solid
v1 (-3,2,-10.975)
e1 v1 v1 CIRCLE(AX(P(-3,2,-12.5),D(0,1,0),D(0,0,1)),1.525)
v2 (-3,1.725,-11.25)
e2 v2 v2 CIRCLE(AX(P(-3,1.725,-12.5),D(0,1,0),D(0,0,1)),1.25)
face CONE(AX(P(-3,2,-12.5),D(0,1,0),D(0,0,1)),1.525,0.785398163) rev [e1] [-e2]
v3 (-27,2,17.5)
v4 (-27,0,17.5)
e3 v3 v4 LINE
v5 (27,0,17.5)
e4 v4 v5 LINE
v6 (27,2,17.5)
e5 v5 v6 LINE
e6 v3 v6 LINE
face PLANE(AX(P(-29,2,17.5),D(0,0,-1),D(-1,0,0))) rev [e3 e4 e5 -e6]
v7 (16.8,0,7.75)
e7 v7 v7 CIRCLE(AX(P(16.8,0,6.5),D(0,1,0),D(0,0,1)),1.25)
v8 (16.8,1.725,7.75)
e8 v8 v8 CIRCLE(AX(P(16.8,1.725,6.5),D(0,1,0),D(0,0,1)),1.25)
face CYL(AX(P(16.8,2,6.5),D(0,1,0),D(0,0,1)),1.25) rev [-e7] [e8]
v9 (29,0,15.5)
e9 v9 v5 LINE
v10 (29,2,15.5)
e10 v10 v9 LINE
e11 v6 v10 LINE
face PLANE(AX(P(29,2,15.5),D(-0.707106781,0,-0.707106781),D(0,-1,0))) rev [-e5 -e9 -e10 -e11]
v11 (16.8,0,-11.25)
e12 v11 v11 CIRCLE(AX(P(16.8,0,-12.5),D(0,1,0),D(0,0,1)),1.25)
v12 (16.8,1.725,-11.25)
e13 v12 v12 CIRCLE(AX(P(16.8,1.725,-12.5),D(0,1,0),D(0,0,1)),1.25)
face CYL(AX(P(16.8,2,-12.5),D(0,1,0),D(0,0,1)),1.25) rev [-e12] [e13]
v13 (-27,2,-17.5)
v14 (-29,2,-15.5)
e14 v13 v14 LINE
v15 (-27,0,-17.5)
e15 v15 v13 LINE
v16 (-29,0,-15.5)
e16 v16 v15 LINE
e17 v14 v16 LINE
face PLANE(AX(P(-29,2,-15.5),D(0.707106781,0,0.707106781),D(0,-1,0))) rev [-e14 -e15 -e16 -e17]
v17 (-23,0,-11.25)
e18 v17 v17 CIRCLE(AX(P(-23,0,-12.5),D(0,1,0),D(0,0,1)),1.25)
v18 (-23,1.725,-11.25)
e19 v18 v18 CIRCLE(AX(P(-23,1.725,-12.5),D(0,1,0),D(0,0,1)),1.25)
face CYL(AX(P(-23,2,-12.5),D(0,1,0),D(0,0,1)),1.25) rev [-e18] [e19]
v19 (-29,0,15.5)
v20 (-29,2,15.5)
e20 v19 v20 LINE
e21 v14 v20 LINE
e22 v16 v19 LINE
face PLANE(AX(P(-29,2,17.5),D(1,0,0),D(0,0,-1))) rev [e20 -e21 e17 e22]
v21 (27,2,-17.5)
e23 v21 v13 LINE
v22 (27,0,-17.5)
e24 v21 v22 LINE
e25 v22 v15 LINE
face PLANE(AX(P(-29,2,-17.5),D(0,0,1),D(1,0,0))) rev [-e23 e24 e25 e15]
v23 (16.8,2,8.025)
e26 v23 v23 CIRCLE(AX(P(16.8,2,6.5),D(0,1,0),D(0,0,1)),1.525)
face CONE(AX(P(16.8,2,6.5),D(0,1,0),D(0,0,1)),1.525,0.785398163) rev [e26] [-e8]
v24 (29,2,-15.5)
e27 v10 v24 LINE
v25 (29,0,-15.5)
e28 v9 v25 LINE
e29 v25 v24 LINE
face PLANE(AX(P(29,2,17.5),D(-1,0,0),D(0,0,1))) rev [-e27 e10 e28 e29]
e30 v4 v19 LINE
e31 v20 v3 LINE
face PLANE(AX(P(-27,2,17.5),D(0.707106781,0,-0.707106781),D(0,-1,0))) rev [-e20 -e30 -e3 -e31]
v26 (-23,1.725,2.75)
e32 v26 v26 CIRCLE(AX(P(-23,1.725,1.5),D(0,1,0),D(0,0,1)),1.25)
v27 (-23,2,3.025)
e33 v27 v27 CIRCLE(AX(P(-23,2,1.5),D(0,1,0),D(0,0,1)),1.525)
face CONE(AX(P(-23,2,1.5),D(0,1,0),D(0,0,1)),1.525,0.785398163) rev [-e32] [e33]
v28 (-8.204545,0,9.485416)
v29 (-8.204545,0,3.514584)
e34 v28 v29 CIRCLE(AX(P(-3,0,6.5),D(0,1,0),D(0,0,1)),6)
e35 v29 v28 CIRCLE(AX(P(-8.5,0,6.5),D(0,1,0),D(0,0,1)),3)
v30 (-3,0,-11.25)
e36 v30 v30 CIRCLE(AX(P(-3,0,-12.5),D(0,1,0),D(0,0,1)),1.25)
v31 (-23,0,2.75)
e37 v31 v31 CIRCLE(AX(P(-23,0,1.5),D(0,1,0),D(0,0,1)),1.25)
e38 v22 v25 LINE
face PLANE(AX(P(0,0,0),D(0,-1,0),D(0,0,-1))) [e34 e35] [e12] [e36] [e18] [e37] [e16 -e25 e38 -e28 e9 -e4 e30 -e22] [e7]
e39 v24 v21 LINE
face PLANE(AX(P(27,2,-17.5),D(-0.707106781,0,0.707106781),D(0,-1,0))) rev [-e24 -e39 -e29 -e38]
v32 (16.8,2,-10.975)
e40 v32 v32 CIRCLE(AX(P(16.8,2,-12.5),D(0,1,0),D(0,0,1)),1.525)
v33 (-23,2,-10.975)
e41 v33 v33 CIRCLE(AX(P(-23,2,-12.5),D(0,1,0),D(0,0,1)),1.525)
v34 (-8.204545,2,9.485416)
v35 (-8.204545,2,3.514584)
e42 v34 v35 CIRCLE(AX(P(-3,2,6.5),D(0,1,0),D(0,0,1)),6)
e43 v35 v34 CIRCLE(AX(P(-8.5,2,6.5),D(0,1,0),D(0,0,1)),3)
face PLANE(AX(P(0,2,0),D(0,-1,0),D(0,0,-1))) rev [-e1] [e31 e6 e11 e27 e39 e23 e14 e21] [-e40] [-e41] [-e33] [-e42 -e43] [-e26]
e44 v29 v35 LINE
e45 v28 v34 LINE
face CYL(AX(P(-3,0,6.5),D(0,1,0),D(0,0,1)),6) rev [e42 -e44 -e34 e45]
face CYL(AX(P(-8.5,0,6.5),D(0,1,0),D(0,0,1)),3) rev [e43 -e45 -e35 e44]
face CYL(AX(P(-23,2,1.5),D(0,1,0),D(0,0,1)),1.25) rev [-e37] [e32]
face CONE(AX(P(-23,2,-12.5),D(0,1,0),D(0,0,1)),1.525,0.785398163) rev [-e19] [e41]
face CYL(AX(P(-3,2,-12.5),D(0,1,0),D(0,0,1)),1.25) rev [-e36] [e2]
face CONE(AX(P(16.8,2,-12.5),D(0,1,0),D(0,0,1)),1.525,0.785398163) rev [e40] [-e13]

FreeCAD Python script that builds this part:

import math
import FreeCAD as App
import Part
import Sketcher

V = App.Vector


def edges_at(feature, points):
    """Names of the edges that pass closest to the given points."""
    edges = feature.Shape.Edges
    near = lambda p: min(range(len(edges)), key=lambda i: edges[i].distToShape(Part.Vertex(*p))[0])
    return sorted({f"Edge{near(p) + 1}" for p in points})


def add_polygon(sketch, points):
    """Adds a closed chain of lines whose ends are joined by coincident constraints."""
    first, n = sketch.GeometryCount, len(points)
    for a, b in zip(points, points[1:] + points[:1]):
        sketch.addGeometry(Part.LineSegment(App.Vector(*a, 0), App.Vector(*b, 0)), False)
    for i in range(n):
        sketch.addConstraint(Sketcher.Constraint("Coincident", first + i, 2, first + (i + 1) % n, 1))

doc = App.newDocument("Part")
params = doc.addObject("Spreadsheet::Sheet", "Params")
for row, (alias, value) in enumerate([
    ("sketch1_width", "58 mm"),
    ("sketch1_height", "35 mm"),
    ("pad1_length", "2 mm"),
    ("sketch2_diameter", "2.5 mm"),
    ("hole_diameter", "2.5 mm"),
    ("hole_csink_diameter", "3.05 mm"),
    ("sketch3_radius", "3 mm"),
    ("sketch3_radius2", "6 mm"),
    ("chamfer_size", "2 mm"),
], start=1):
    params.set(f"A{row}", alias)
    params.set(f"B{row}", "=" + value)
    params.setAlias(f"B{row}", alias)

body = doc.addObject("PartDesign::Body", "Body")

sketch1 = doc.addObject("Sketcher::SketchObject", "Sketch")
body.addObject(sketch1)
sketch1.AttachmentSupport = (doc.XZ_Plane, [""])
sketch1.MapMode = "FlatFace"
add_polygon(sketch1, [(-29, -18), (-29, 18), (29, 18), (29, -18)])
sketch1.addConstraint([
    Sketcher.Constraint("Vertical", 0),
    Sketcher.Constraint("Horizontal", 1),
    Sketcher.Constraint("Vertical", 2),
    Sketcher.Constraint("Horizontal", 3),
    Sketcher.Constraint("Symmetric", 0, 2, 2, 2, -1, 1),
    Sketcher.Constraint("DistanceX", 1, 1, 1, 2, 58.0),
    Sketcher.Constraint("DistanceY", 0, 1, 0, 2, 35.0),
])
sketch1.setExpression("Constraints[9]", "Params.sketch1_width")
sketch1.setExpression("Constraints[10]", "Params.sketch1_height")
pad1 = doc.addObject("PartDesign::Pad", "Pad")
body.addObject(pad1)
pad1.Profile = sketch1
pad1.setExpression("Length", "Params.pad1_length")
pad1.Reversed = True

sketch2 = doc.addObject("Sketcher::SketchObject", "Sketch001")
body.addObject(sketch2)
sketch2.AttachmentSupport = (doc.XZ_Plane, [""])
sketch2.MapMode = "FlatFace"
sketch2.AttachmentOffset = App.Placement(V(0, 0, -2), App.Rotation())
sketch2.addGeometry([
    Part.Circle(V(-23, -12.5, 0), V(0, 0, 1), 1.2),
    Part.Circle(V(-3, -12.5, 0), V(0, 0, 1), 1.2),
    Part.Circle(V(16.8, -12.5, 0), V(0, 0, 1), 1.2),
    Part.Circle(V(16.8, 6.5, 0), V(0, 0, 1), 1.2),
    Part.Circle(V(-23, 1.5, 0), V(0, 0, 1), 1.2),
], False)
sketch2.addConstraint([
    Sketcher.Constraint("Equal", 0, 1),
    Sketcher.Constraint("Equal", 1, 2),
    Sketcher.Constraint("Equal", 2, 3),
    Sketcher.Constraint("Equal", 3, 4),
    Sketcher.Constraint("Horizontal", 0, 3, 1, 3),
    Sketcher.Constraint("Horizontal", 1, 3, 2, 3),
    Sketcher.Constraint("Vertical", 2, 3, 3, 3),
    Sketcher.Constraint("Vertical", 0, 3, 4, 3),
    Sketcher.Constraint("Diameter", 0, 2.5),
    Sketcher.Constraint("DistanceX", 0, 3, -1, 1, 23.0),
    Sketcher.Constraint("DistanceX", 1, 3, -1, 1, 3.0),
    Sketcher.Constraint("DistanceY", 2, 3, 3, 3, 19.0),
    Sketcher.Constraint("DistanceY", 0, 3, 4, 3, 14.0),
    Sketcher.Constraint("DistanceY", 0, 3, -1, 1, 12.5),
    Sketcher.Constraint("DistanceX", -1, 1, 2, 3, 16.8),
])
sketch2.setExpression("Constraints[8]", "Params.sketch2_diameter")
doc.recompute()
hole = doc.addObject("PartDesign::Hole", "Hole")
body.addObject(hole)
hole.Profile = sketch2
hole.ThreadType = "None"
hole.setExpression("Diameter", "Params.hole_diameter")
hole.DepthType = "ThroughAll"
hole.HoleCutType = "Countersink"
hole.setExpression("HoleCutDiameter", "Params.hole_csink_diameter")
hole.HoleCutCountersinkAngle = 90
hole.Reversed = True

sketch3 = doc.addObject("Sketcher::SketchObject", "Sketch002")
body.addObject(sketch3)
sketch3.AttachmentSupport = (doc.XZ_Plane, [""])
sketch3.MapMode = "FlatFace"
sketch3.AttachmentOffset = App.Placement(V(0, 0, -2), App.Rotation())
sketch3.addGeometry([
    Part.ArcOfCircle(Part.Circle(V(-8.5, 6.5, 0), V(0, 0, 1), 3), math.radians(84), math.radians(276)),
    Part.ArcOfCircle(Part.Circle(V(-3, 6.5, 0), V(0, 0, 1), 6), math.radians(-150), math.radians(150)),
], False)
sketch3.addConstraint([
    Sketcher.Constraint("Coincident", 0, 1, 1, 2),
    Sketcher.Constraint("Coincident", 1, 1, 0, 2),
    Sketcher.Constraint("Horizontal", 0, 3, 1, 3),
    Sketcher.Constraint("Radius", 0, 3.0),
    Sketcher.Constraint("Radius", 1, 6.0),
    Sketcher.Constraint("DistanceX", 1, 3, -1, 1, 3.0),
    Sketcher.Constraint("DistanceX", 0, 3, -1, 1, 8.5),
    Sketcher.Constraint("DistanceY", -1, 1, 0, 3, 6.5),
])
sketch3.setExpression("Constraints[3]", "Params.sketch3_radius")
sketch3.setExpression("Constraints[4]", "Params.sketch3_radius2")
pocket1 = doc.addObject("PartDesign::Pocket", "Pocket")
body.addObject(pocket1)
pocket1.Profile = sketch3
pocket1.Type = "ThroughAll"
pocket1.Reversed = True
doc.recompute()

chamfer = doc.addObject("PartDesign::Chamfer", "Chamfer")
body.addObject(chamfer)
chamfer.Base = (pocket1, edges_at(pocket1, [
    (29, 1, 17.5),
    (-29, 1, 17.5),
    (-29, 1, -17.5),
    (29, 1, -17.5),
]))
chamfer.setExpression("Size", "Params.chamfer_size")

doc.recompute()
